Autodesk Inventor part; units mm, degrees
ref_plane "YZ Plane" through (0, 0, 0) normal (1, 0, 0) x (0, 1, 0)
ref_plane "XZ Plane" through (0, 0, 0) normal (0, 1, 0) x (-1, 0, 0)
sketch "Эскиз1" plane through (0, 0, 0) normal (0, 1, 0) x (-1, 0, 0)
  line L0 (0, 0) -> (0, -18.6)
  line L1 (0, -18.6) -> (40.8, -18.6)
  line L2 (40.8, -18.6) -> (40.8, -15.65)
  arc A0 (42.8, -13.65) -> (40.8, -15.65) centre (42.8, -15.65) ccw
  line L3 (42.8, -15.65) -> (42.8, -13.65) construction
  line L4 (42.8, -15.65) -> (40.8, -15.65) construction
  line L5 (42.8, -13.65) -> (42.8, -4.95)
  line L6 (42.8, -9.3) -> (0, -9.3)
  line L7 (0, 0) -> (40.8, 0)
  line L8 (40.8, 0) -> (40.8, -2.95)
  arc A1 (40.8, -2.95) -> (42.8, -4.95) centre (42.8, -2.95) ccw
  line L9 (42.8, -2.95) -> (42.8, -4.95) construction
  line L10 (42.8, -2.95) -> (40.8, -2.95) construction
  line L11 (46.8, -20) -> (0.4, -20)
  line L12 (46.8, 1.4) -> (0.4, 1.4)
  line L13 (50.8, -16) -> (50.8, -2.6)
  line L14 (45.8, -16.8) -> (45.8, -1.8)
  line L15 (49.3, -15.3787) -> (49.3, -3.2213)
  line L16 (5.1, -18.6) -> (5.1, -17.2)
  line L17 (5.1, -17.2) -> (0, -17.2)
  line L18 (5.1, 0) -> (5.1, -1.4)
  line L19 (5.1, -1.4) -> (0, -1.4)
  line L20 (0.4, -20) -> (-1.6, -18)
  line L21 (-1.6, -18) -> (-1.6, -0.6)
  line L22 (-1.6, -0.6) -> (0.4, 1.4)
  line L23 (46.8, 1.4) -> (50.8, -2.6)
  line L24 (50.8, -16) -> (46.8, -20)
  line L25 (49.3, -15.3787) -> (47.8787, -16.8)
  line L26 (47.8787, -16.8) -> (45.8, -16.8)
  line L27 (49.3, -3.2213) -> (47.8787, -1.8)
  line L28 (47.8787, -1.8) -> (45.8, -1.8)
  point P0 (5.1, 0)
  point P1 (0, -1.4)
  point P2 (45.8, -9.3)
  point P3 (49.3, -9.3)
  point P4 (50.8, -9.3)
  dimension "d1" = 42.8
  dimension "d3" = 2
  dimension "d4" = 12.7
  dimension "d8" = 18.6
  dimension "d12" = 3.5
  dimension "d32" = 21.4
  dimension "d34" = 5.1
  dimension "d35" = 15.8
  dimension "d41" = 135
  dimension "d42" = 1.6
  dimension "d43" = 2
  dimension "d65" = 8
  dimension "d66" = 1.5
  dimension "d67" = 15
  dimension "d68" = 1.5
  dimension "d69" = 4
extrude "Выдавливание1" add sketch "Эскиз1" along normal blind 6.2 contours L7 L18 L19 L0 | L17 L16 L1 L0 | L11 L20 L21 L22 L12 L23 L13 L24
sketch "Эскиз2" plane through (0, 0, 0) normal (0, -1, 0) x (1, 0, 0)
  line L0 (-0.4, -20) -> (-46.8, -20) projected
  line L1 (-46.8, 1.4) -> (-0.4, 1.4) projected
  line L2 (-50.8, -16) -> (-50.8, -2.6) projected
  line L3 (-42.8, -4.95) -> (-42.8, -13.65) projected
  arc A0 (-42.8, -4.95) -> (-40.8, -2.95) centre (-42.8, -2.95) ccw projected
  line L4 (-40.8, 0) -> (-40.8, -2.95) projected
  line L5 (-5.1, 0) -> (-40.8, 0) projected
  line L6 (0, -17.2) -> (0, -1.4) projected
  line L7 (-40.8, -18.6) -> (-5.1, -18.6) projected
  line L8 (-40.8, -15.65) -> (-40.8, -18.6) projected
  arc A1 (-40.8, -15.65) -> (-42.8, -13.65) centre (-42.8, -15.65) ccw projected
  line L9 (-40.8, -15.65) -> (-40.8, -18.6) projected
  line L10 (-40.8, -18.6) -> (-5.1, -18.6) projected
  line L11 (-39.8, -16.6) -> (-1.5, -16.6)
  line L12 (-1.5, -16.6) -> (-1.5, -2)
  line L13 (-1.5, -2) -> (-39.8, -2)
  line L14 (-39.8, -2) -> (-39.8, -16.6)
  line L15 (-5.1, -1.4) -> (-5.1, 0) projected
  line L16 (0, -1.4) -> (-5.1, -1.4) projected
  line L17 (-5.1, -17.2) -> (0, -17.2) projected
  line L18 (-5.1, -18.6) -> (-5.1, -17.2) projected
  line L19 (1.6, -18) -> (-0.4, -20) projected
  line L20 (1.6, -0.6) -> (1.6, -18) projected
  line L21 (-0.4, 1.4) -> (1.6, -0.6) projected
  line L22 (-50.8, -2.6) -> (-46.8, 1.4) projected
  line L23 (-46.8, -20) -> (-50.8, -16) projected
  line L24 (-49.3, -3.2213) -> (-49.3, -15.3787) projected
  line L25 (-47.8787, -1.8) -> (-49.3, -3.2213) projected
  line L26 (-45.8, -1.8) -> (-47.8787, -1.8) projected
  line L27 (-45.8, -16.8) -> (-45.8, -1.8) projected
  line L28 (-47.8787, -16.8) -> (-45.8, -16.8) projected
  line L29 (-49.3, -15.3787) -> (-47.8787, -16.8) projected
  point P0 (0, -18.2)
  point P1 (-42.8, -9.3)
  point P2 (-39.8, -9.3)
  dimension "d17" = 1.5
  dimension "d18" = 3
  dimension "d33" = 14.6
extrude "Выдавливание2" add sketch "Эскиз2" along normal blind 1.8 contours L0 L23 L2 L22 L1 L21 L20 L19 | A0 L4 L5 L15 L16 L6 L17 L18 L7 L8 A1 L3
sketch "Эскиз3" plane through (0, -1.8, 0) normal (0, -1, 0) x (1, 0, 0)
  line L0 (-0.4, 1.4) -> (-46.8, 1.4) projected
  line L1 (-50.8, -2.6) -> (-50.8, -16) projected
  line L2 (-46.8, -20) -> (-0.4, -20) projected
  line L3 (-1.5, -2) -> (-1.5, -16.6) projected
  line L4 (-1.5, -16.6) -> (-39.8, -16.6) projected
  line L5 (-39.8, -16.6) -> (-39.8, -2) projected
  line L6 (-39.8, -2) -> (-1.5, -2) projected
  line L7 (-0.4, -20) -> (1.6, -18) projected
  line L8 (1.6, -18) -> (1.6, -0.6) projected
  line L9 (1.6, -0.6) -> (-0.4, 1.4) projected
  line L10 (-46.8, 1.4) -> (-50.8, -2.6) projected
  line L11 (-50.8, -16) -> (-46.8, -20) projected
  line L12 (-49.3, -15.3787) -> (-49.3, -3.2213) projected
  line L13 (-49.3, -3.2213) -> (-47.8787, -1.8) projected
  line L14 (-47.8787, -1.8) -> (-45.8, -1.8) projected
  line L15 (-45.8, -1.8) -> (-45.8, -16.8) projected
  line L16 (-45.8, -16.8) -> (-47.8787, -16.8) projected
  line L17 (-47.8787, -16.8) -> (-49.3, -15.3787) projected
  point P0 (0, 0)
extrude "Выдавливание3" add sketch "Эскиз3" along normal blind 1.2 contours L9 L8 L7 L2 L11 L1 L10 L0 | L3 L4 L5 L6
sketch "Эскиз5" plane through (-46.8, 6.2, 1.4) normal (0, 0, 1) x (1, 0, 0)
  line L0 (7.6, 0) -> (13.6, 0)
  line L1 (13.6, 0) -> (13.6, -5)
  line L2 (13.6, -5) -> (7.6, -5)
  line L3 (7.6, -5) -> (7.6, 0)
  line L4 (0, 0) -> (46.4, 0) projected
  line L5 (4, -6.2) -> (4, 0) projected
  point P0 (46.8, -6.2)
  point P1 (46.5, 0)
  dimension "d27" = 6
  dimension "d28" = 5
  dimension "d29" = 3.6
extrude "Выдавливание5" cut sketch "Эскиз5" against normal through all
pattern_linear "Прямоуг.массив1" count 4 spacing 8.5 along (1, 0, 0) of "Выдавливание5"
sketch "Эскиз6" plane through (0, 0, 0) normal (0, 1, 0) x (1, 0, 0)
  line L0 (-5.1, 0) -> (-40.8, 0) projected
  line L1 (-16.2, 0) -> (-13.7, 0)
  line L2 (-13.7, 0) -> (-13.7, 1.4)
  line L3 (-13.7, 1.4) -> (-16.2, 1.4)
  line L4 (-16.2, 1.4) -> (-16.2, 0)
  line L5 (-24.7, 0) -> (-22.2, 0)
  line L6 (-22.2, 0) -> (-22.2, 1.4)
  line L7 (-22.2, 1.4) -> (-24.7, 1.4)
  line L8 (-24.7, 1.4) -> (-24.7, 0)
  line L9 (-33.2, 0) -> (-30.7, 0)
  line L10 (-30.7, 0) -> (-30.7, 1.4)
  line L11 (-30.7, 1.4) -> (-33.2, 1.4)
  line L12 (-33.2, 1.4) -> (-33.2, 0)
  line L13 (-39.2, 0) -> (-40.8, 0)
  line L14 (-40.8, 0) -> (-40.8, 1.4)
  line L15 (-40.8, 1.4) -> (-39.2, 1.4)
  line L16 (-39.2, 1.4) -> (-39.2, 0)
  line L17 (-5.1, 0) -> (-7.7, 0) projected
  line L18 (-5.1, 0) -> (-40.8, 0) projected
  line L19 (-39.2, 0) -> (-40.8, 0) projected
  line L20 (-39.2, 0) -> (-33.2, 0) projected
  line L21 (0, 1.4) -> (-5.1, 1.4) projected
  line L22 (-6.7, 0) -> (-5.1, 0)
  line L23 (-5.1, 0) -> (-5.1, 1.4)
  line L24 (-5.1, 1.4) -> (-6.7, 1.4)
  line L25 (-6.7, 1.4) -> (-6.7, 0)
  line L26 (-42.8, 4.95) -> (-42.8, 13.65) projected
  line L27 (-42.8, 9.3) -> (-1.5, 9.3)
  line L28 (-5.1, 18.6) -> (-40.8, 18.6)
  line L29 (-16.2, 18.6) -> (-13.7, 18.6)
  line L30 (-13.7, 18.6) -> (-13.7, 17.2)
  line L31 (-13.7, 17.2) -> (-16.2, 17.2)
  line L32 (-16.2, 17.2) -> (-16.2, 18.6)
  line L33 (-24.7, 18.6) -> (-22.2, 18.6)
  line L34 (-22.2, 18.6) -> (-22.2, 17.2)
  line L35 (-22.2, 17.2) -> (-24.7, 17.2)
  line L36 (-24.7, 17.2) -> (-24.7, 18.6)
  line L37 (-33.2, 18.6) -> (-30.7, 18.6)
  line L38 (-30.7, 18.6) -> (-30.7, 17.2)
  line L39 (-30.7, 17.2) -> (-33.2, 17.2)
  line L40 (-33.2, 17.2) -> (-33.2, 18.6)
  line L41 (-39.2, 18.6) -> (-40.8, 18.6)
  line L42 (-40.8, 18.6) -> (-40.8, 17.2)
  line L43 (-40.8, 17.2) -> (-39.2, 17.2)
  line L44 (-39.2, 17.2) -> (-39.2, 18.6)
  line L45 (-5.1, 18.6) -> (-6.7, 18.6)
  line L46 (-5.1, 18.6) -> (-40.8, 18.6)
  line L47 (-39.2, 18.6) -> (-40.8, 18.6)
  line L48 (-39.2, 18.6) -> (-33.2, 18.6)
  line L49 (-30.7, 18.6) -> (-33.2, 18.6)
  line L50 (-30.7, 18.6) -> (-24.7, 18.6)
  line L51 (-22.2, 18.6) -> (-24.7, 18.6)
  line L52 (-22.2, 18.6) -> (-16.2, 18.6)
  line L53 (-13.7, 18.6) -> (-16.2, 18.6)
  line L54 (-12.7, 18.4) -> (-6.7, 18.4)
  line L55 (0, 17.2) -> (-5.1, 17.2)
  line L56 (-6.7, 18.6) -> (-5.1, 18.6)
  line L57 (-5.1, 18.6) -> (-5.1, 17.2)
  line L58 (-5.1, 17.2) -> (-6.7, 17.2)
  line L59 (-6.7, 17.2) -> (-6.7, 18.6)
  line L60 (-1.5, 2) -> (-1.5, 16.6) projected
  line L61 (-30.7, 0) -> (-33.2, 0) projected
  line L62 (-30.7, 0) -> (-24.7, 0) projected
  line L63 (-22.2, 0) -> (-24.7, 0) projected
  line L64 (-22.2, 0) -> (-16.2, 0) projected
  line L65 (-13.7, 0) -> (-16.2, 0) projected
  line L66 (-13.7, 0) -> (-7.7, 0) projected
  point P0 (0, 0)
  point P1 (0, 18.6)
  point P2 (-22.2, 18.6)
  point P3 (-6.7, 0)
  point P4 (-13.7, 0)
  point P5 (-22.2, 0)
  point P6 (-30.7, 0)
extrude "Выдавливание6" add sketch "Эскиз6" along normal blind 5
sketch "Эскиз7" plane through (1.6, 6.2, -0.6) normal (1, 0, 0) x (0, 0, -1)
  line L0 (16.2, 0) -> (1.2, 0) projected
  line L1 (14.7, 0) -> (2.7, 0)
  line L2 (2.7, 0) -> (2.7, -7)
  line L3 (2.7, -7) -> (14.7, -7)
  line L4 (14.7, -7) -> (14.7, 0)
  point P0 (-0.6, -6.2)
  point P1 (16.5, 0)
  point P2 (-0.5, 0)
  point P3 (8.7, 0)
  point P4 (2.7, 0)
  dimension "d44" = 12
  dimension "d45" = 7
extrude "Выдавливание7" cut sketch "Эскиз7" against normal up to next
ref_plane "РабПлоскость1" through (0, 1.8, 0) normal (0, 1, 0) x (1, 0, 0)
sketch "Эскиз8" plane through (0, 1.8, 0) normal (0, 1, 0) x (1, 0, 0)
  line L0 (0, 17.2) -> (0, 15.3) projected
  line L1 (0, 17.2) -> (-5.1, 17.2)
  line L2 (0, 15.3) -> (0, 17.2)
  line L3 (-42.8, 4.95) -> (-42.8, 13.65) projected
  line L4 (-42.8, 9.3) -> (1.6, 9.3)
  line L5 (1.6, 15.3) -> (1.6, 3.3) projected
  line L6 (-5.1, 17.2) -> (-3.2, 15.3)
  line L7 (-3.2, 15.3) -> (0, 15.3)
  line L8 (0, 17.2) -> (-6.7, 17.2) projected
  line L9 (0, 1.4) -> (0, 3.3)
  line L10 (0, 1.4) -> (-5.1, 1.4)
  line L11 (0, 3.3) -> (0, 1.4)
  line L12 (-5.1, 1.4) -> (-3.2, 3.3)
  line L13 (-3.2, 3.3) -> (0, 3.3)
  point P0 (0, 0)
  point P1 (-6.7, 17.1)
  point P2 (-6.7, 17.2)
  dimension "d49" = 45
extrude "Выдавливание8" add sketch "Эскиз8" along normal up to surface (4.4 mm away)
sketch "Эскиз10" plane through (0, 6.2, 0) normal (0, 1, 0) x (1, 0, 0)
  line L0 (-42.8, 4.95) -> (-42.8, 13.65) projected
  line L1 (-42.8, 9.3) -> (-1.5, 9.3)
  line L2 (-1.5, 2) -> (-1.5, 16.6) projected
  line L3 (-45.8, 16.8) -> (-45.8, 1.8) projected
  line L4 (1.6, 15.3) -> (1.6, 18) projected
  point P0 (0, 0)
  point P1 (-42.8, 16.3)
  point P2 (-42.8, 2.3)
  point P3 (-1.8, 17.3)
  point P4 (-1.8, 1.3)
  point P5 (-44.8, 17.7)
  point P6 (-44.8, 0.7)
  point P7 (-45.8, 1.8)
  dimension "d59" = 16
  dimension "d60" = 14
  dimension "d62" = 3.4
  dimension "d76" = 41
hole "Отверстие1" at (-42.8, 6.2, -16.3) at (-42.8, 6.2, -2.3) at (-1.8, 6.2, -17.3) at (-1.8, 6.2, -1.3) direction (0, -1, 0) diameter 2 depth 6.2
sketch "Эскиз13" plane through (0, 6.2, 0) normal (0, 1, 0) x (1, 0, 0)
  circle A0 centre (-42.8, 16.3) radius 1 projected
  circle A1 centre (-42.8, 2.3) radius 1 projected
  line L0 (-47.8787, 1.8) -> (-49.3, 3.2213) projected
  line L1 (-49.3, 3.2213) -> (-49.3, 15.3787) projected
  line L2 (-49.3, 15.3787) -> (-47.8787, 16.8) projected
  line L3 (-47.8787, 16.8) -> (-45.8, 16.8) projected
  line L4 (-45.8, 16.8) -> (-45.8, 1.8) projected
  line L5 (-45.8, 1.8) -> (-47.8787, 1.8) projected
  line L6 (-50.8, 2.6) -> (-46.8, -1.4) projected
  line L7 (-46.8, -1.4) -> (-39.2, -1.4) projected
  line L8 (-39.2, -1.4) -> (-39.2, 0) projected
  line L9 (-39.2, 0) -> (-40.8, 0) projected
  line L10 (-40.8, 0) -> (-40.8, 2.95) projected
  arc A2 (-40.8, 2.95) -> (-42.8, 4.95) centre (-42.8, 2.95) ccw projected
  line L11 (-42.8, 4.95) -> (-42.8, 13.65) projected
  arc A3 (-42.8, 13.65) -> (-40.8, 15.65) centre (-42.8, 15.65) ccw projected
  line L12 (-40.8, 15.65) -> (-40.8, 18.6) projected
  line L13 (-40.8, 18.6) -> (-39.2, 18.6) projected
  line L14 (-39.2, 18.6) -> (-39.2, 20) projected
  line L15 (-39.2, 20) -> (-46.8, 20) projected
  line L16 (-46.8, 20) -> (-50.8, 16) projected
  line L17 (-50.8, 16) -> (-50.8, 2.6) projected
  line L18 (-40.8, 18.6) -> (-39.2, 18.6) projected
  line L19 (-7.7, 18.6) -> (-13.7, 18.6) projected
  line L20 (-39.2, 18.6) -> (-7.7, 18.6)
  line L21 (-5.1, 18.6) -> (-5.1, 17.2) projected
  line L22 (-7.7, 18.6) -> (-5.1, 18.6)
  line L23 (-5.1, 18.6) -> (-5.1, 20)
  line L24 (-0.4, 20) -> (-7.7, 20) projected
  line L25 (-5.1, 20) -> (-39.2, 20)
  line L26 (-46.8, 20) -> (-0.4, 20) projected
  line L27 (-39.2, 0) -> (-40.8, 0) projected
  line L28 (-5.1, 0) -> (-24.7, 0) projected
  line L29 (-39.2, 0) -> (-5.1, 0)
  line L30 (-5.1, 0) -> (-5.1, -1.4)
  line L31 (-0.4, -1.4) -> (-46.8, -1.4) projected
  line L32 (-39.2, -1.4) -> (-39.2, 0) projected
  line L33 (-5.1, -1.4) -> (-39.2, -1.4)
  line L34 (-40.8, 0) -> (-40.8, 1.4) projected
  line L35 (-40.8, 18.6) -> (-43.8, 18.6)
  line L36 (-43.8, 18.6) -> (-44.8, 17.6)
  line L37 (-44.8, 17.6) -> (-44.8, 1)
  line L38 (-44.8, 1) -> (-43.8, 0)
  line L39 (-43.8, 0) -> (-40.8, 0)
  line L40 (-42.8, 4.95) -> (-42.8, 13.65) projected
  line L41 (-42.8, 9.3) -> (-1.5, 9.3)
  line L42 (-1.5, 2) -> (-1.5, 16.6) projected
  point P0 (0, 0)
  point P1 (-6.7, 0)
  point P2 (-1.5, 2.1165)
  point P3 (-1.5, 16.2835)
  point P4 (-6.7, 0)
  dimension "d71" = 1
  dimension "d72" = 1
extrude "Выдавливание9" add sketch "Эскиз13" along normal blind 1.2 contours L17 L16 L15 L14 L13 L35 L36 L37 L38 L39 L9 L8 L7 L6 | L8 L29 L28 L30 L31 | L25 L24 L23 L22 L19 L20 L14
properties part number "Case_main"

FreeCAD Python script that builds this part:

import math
import FreeCAD as App
import Part
import Sketcher

V = App.Vector
Q = App.Units.Quantity

doc = App.newDocument("Part")
body = doc.addObject("PartDesign::Body", "Body")

# Sketch on XZ plane
sketch1 = body.newObject("Sketcher::SketchObject", "Sketch")
sketch1.AttachmentSupport = (doc.getObject("XZ_Plane"), [""])
sketch1.MapMode = "FlatFace"
sketch1.addGeometry([
    Part.LineSegment(V(-0.4, -20, 0), V(-46.8, -20, 0)),  # 0
    Part.LineSegment(V(-46.8, -20, 0), V(-50.8, -16, 0)),  # 1
    Part.LineSegment(V(-50.8, -16, 0), V(-50.8, -2.6, 0)),  # 2
    Part.LineSegment(V(-50.8, -2.6, 0), V(-46.8, 1.4, 0)),  # 3
    Part.LineSegment(V(-46.8, 1.4, 0), V(-0.4, 1.4, 0)),  # 4
    Part.LineSegment(V(-0.4, 1.4, 0), V(1.6, -0.6, 0)),  # 5
    Part.LineSegment(V(1.6, -0.6, 0), V(1.6, -18, 0)),  # 6
    Part.LineSegment(V(1.6, -18, 0), V(-0.4, -20, 0)),  # 7
    Part.LineSegment(V(-5.1, -1.4, 0), V(-5.1, 0, 0)),  # 8
    Part.LineSegment(V(-5.1, 0, 0), V(-40.8, 0, 0)),  # 9
    Part.LineSegment(V(-40.8, 0, 0), V(-40.8, -3, 0)),  # 10
    Part.ArcOfCircle(Part.Circle(V(-42.8, -3, 0), V(0, 0, 1), 2), math.radians(-90), math.radians(0)),  # 11
    Part.LineSegment(V(-42.8, -5, 0), V(-42.8, -13.7, 0)),  # 12
    Part.ArcOfCircle(Part.Circle(V(-42.8, -15.7, 0), V(0, 0, 1), 2), math.radians(0), math.radians(90)),  # 13
    Part.LineSegment(V(-40.8, -15.7, 0), V(-40.8, -18.6, 0)),  # 14
    Part.LineSegment(V(-40.8, -18.6, 0), V(-5.1, -18.6, 0)),  # 15
    Part.LineSegment(V(-5.1, -18.6, 0), V(-5.1, -17.2, 0)),  # 16
    Part.LineSegment(V(-5.1, -17.2, 0), V(0, -17.2, 0)),  # 17
    Part.LineSegment(V(0, -17.2, 0), V(0, -1.4, 0)),  # 18
    Part.LineSegment(V(0, -1.4, 0), V(-5.1, -1.4, 0)),  # 19
    Part.LineSegment(V(-45.8, -1.8, 0), V(-47.9, -1.8, 0)),  # 20
    Part.LineSegment(V(-47.9, -1.8, 0), V(-49.3, -3.2, 0)),  # 21
    Part.LineSegment(V(-49.3, -3.2, 0), V(-49.3, -15.4, 0)),  # 22
    Part.LineSegment(V(-49.3, -15.4, 0), V(-47.9, -16.8, 0)),  # 23
    Part.LineSegment(V(-47.9, -16.8, 0), V(-45.8, -16.8, 0)),  # 24
    Part.LineSegment(V(-45.8, -16.8, 0), V(-45.8, -1.8, 0)),  # 25
], False)
sketch1.addConstraint([
    Sketcher.Constraint("Coincident", 0, 2, 1, 1),
    Sketcher.Constraint("Coincident", 1, 2, 2, 1),
    Sketcher.Constraint("Coincident", 2, 2, 3, 1),
    Sketcher.Constraint("Coincident", 3, 2, 4, 1),
    Sketcher.Constraint("Coincident", 4, 2, 5, 1),
    Sketcher.Constraint("Coincident", 5, 2, 6, 1),
    Sketcher.Constraint("Coincident", 6, 2, 7, 1),
    Sketcher.Constraint("Coincident", 7, 2, 0, 1),
    Sketcher.Constraint("Coincident", 8, 2, 9, 1),
    Sketcher.Constraint("Coincident", 9, 2, 10, 1),
    Sketcher.Constraint("Tangent", 10, 2, 11, 2),
    Sketcher.Constraint("Coincident", 11, 1, 12, 1),
    Sketcher.Constraint("Coincident", 12, 2, 13, 2),
    Sketcher.Constraint("Tangent", 13, 1, 14, 1),
    Sketcher.Constraint("Coincident", 14, 2, 15, 1),
    Sketcher.Constraint("Coincident", 15, 2, 16, 1),
    Sketcher.Constraint("Coincident", 16, 2, 17, 1),
    Sketcher.Constraint("Coincident", 17, 2, 18, 1),
    Sketcher.Constraint("Coincident", 18, 2, 19, 1),
    Sketcher.Constraint("Coincident", 19, 2, 8, 1),
    Sketcher.Constraint("Coincident", 20, 2, 21, 1),
    Sketcher.Constraint("Coincident", 21, 2, 22, 1),
    Sketcher.Constraint("Coincident", 22, 2, 23, 1),
    Sketcher.Constraint("Coincident", 23, 2, 24, 1),
    Sketcher.Constraint("Coincident", 24, 2, 25, 1),
    Sketcher.Constraint("Coincident", 25, 2, 20, 1),
    Sketcher.Constraint("Horizontal", 0),
    Sketcher.Constraint("Vertical", 2),
    Sketcher.Constraint("Horizontal", 4),
    Sketcher.Constraint("Vertical", 6),
    Sketcher.Constraint("Vertical", 8),
    Sketcher.Constraint("Horizontal", 9),
    Sketcher.Constraint("Vertical", 10),
    Sketcher.Constraint("Vertical", 12),
    Sketcher.Constraint("Vertical", 14),
    Sketcher.Constraint("Horizontal", 15),
    Sketcher.Constraint("Vertical", 16),
    Sketcher.Constraint("Horizontal", 17),
    Sketcher.Constraint("Vertical", 18),
    Sketcher.Constraint("Horizontal", 19),
    Sketcher.Constraint("Horizontal", 20),
    Sketcher.Constraint("Vertical", 22),
    Sketcher.Constraint("Horizontal", 24),
    Sketcher.Constraint("Vertical", 25),
    Sketcher.Constraint("Equal", 11, 13),
    Sketcher.Constraint("PointOnObject", 8, 2, -1),
    Sketcher.Constraint("PointOnObject", 17, 2, -2),
    Sketcher.Constraint("Perpendicular", 1, 3),
    Sketcher.Constraint("Perpendicular", 3, 5),
    Sketcher.Constraint("Perpendicular", 5, 7),
    Sketcher.Constraint("Parallel", 7, 21),
    Sketcher.Constraint("Perpendicular", 21, 23),
    Sketcher.Constraint("Vertical", 11, 3, 13, 3),
    Sketcher.Constraint("Vertical", 0, 2, 3, 2),
    Sketcher.Constraint("Vertical", 4, 2, 7, 2),
    Sketcher.Constraint("Vertical", 13, 3, 11, 1),
    Sketcher.Constraint("Vertical", 8, 2, 15, 2),
    Sketcher.Constraint("Vertical", 20, 2, 23, 2),
    Sketcher.Constraint("Equal", 10, 14),
    Sketcher.Constraint("Equal", 8, 16),
    Sketcher.Constraint("Equal", 1, 3),
    Sketcher.Constraint("Radius", 11, Q("2 mm")),
    Sketcher.Constraint("DistanceY", 25, 1, 25, 2, Q("15 mm")),
    Sketcher.Constraint("DistanceX", 17, 1, 17, 2, Q("5.1 mm")),
    Sketcher.Constraint("DistanceY", 18, 1, 18, 2, Q("15.8 mm")),
    Sketcher.Constraint("DistanceX", 0, 2, 13, 3, Q("4 mm")),
    Sketcher.Constraint("DistanceX", 1, 2, 0, 2, Q("4 mm")),
    Sketcher.Constraint("DistanceX", 4, 2, 5, 2, Q("2 mm")),
    Sketcher.Constraint("DistanceX", 11, 3, -1, 1, Q("42.8 mm")),
    Sketcher.Constraint("DistanceX", -1, 1, 5, 2, Q("1.6 mm")),
    Sketcher.Constraint("DistanceY", 14, 2, -1, 1, Q("18.6 mm")),
    Sketcher.Constraint("DistanceY", 13, 3, 11, 3, Q("12.7 mm")),
    Sketcher.Constraint("DistanceY", 0, 2, 3, 2, Q("21.4 mm")),
    Sketcher.Constraint("DistanceX", 2, 2, 21, 2, Q("1.5 mm")),
    Sketcher.Constraint("DistanceX", 22, 2, 24, 2, Q("3.5 mm")),
    Sketcher.Constraint("DistanceY", 0, 2, -1, 1, Q("20 mm")),
    Sketcher.Constraint("DistanceY", 20, 2, -1, 1, Q("1.8 mm")),
    Sketcher.Constraint("Distance", 21, Q("2.01 mm")),
])
pad1 = body.newObject("PartDesign::Pad", "Pad")
pad1.Profile = sketch1
pad1.Length = 6.2
pad1.Reversed = True

# Sketch on XZ plane
sketch2 = body.newObject("Sketcher::SketchObject", "Sketch001")
sketch2.AttachmentSupport = (doc.getObject("XZ_Plane"), [""])
sketch2.MapMode = "FlatFace"
sketch2.addGeometry([
    Part.LineSegment(V(-46.8, -20, 0), V(-0.4, -20, 0)),  # 0
    Part.LineSegment(V(-0.4, -20, 0), V(1.6, -18, 0)),  # 1
    Part.LineSegment(V(1.6, -18, 0), V(1.6, -0.6, 0)),  # 2
    Part.LineSegment(V(1.6, -0.6, 0), V(-0.4, 1.4, 0)),  # 3
    Part.LineSegment(V(-0.4, 1.4, 0), V(-46.8, 1.4, 0)),  # 4
    Part.LineSegment(V(-46.8, 1.4, 0), V(-50.8, -2.6, 0)),  # 5
    Part.LineSegment(V(-50.8, -2.6, 0), V(-50.8, -16, 0)),  # 6
    Part.LineSegment(V(-50.8, -16, 0), V(-46.8, -20, 0)),  # 7
    Part.LineSegment(V(-49.3, -15.4, 0), V(-49.3, -3.2, 0)),  # 8
    Part.LineSegment(V(-49.3, -3.2, 0), V(-47.9, -1.8, 0)),  # 9
    Part.LineSegment(V(-47.9, -1.8, 0), V(-45.8, -1.8, 0)),  # 10
    Part.LineSegment(V(-45.8, -1.8, 0), V(-45.8, -16.8, 0)),  # 11
    Part.LineSegment(V(-45.8, -16.8, 0), V(-47.9, -16.8, 0)),  # 12
    Part.LineSegment(V(-47.9, -16.8, 0), V(-49.3, -15.4, 0)),  # 13
    Part.LineSegment(V(-1.5, -16.6, 0), V(-39.8, -16.6, 0)),  # 14
    Part.LineSegment(V(-39.8, -16.6, 0), V(-39.8, -2, 0)),  # 15
    Part.LineSegment(V(-39.8, -2, 0), V(-1.5, -2, 0)),  # 16
    Part.LineSegment(V(-1.5, -2, 0), V(-1.5, -16.6, 0)),  # 17
], False)
sketch2.addConstraint([
    Sketcher.Constraint("Coincident", 0, 2, 1, 1),
    Sketcher.Constraint("Coincident", 1, 2, 2, 1),
    Sketcher.Constraint("Coincident", 2, 2, 3, 1),
    Sketcher.Constraint("Coincident", 3, 2, 4, 1),
    Sketcher.Constraint("Coincident", 4, 2, 5, 1),
    Sketcher.Constraint("Coincident", 5, 2, 6, 1),
    Sketcher.Constraint("Coincident", 6, 2, 7, 1),
    Sketcher.Constraint("Coincident", 7, 2, 0, 1),
    Sketcher.Constraint("Coincident", 8, 2, 9, 1),
    Sketcher.Constraint("Coincident", 9, 2, 10, 1),
    Sketcher.Constraint("Coincident", 10, 2, 11, 1),
    Sketcher.Constraint("Coincident", 11, 2, 12, 1),
    Sketcher.Constraint("Coincident", 12, 2, 13, 1),
    Sketcher.Constraint("Coincident", 13, 2, 8, 1),
    Sketcher.Constraint("Coincident", 14, 2, 15, 1),
    Sketcher.Constraint("Coincident", 15, 2, 16, 1),
    Sketcher.Constraint("Coincident", 16, 2, 17, 1),
    Sketcher.Constraint("Coincident", 17, 2, 14, 1),
    Sketcher.Constraint("Horizontal", 0),
    Sketcher.Constraint("Vertical", 2),
    Sketcher.Constraint("Horizontal", 4),
    Sketcher.Constraint("Vertical", 6),
    Sketcher.Constraint("Vertical", 8),
    Sketcher.Constraint("Horizontal", 10),
    Sketcher.Constraint("Vertical", 11),
    Sketcher.Constraint("Horizontal", 12),
    Sketcher.Constraint("Horizontal", 14),
    Sketcher.Constraint("Vertical", 15),
    Sketcher.Constraint("Horizontal", 16),
    Sketcher.Constraint("Vertical", 17),
    Sketcher.Constraint("Perpendicular", 1, 3),
    Sketcher.Constraint("Perpendicular", 3, 5),
    Sketcher.Constraint("Perpendicular", 5, 7),
    Sketcher.Constraint("Perpendicular", 7, 9),
    Sketcher.Constraint("Perpendicular", 9, 13),
    Sketcher.Constraint("Vertical", 0, 2, 3, 2),
    Sketcher.Constraint("Vertical", 4, 2, 7, 2),
    Sketcher.Constraint("Vertical", 9, 2, 12, 2),
    Sketcher.Constraint("Equal", 1, 3),
    Sketcher.Constraint("DistanceY", 15, 1, 15, 2, Q("14.6 mm")),
    Sketcher.Constraint("DistanceX", 16, 2, -1, 1, Q("1.5 mm")),
    Sketcher.Constraint("DistanceX", 5, 2, 8, 2, Q("1.5 mm")),
    Sketcher.Constraint("DistanceY", 11, 2, 11, 1, Q("15 mm")),
    Sketcher.Constraint("DistanceX", 0, 1, 0, 2, Q("46.4 mm")),
    Sketcher.Constraint("DistanceX", 14, 2, 14, 1, Q("38.3 mm")),
    Sketcher.Constraint("DistanceY", 2, 1, 2, 2, Q("17.4 mm")),
    Sketcher.Constraint("DistanceY", 6, 2, 6, 1, Q("13.4 mm")),
    Sketcher.Constraint("DistanceY", 0, 2, -1, 1, Q("20 mm")),
    Sketcher.Constraint("DistanceY", 1, 2, -1, 1, Q("18 mm")),
    Sketcher.Constraint("DistanceY", 15, 2, -1, 1, Q("2 mm")),
    Sketcher.Constraint("DistanceX", 4, 2, 10, 2, Q("1 mm")),
    Sketcher.Constraint("DistanceX", 11, 2, 14, 2, Q("6 mm")),
    Sketcher.Constraint("DistanceY", 9, 2, -1, 1, Q("1.8 mm")),
    Sketcher.Constraint("Distance", 9, Q("2.01 mm")),
])
pad2 = body.newObject("PartDesign::Pad", "Pad001")
pad2.Profile = sketch2
pad2.Length = 1.8

# Sketch on XZ plane
sketch3 = body.newObject("Sketcher::SketchObject", "Sketch002")
sketch3.AttachmentSupport = (doc.getObject("XZ_Plane"), [""])
sketch3.MapMode = "FlatFace"
sketch3.AttachmentOffset = App.Placement(V(0, 0, 1.8), App.Rotation())
sketch3.addGeometry([
    Part.LineSegment(V(1.6, -0.6, 0), V(-0.4, 1.4, 0)),  # 0
    Part.LineSegment(V(-0.4, 1.4, 0), V(-46.8, 1.4, 0)),  # 1
    Part.LineSegment(V(-46.8, 1.4, 0), V(-50.8, -2.6, 0)),  # 2
    Part.LineSegment(V(-50.8, -2.6, 0), V(-50.8, -16, 0)),  # 3
    Part.LineSegment(V(-50.8, -16, 0), V(-46.8, -20, 0)),  # 4
    Part.LineSegment(V(-46.8, -20, 0), V(-0.4, -20, 0)),  # 5
    Part.LineSegment(V(-0.4, -20, 0), V(1.6, -18, 0)),  # 6
    Part.LineSegment(V(1.6, -18, 0), V(1.6, -0.6, 0)),  # 7
    Part.LineSegment(V(-47.9, -16.8, 0), V(-49.3, -15.4, 0)),  # 8
    Part.LineSegment(V(-49.3, -15.4, 0), V(-49.3, -3.2, 0)),  # 9
    Part.LineSegment(V(-49.3, -3.2, 0), V(-47.9, -1.8, 0)),  # 10
    Part.LineSegment(V(-47.9, -1.8, 0), V(-45.8, -1.8, 0)),  # 11
    Part.LineSegment(V(-45.8, -1.8, 0), V(-45.8, -16.8, 0)),  # 12
    Part.LineSegment(V(-45.8, -16.8, 0), V(-47.9, -16.8, 0)),  # 13
], False)
sketch3.addConstraint([
    Sketcher.Constraint("Coincident", 0, 2, 1, 1),
    Sketcher.Constraint("Coincident", 1, 2, 2, 1),
    Sketcher.Constraint("Coincident", 2, 2, 3, 1),
    Sketcher.Constraint("Coincident", 3, 2, 4, 1),
    Sketcher.Constraint("Coincident", 4, 2, 5, 1),
    Sketcher.Constraint("Coincident", 5, 2, 6, 1),
    Sketcher.Constraint("Coincident", 6, 2, 7, 1),
    Sketcher.Constraint("Coincident", 7, 2, 0, 1),
    Sketcher.Constraint("Coincident", 8, 2, 9, 1),
    Sketcher.Constraint("Coincident", 9, 2, 10, 1),
    Sketcher.Constraint("Coincident", 10, 2, 11, 1),
    Sketcher.Constraint("Coincident", 11, 2, 12, 1),
    Sketcher.Constraint("Coincident", 12, 2, 13, 1),
    Sketcher.Constraint("Coincident", 13, 2, 8, 1),
    Sketcher.Constraint("Horizontal", 1),
    Sketcher.Constraint("Vertical", 3),
    Sketcher.Constraint("Horizontal", 5),
    Sketcher.Constraint("Vertical", 7),
    Sketcher.Constraint("Vertical", 9),
    Sketcher.Constraint("Horizontal", 11),
    Sketcher.Constraint("Vertical", 12),
    Sketcher.Constraint("Horizontal", 13),
    Sketcher.Constraint("Perpendicular", 0, 2),
    Sketcher.Constraint("Perpendicular", 2, 4),
    Sketcher.Constraint("Perpendicular", 4, 6),
    Sketcher.Constraint("Perpendicular", 6, 8),
    Sketcher.Constraint("Perpendicular", 8, 10),
    Sketcher.Constraint("Vertical", 1, 2, 4, 2),
    Sketcher.Constraint("Vertical", 0, 2, 5, 2),
    Sketcher.Constraint("Vertical", 10, 2, 13, 2),
    Sketcher.Constraint("Equal", 2, 4),
    Sketcher.Constraint("DistanceY", 12, 2, 12, 1, Q("15 mm")),
    Sketcher.Constraint("DistanceX", 1, 2, 1, 1, Q("46.4 mm")),
    Sketcher.Constraint("DistanceY", 3, 2, 3, 1, Q("13.4 mm")),
    Sketcher.Constraint("DistanceY", 7, 1, 7, 2, Q("17.4 mm")),
    Sketcher.Constraint("DistanceY", 3, 2, -1, 1, Q("16 mm")),
    Sketcher.Constraint("DistanceY", 4, 2, -1, 1, Q("20 mm")),
    Sketcher.Constraint("DistanceX", 1, 2, 11, 2, Q("1 mm")),
    Sketcher.Constraint("DistanceX", 0, 2, -1, 1, Q("0.4 mm")),
    Sketcher.Constraint("DistanceX", 8, 2, -1, 1, Q("49.3 mm")),
    Sketcher.Constraint("DistanceY", 10, 2, -1, 1, Q("1.8 mm")),
    Sketcher.Constraint("Distance", 8, Q("2.01 mm")),
])
pad3 = body.newObject("PartDesign::Pad", "Pad002")
pad3.Profile = sketch3
pad3.Length = 1.2

# Sketch on XY plane
sketch4 = body.newObject("Sketcher::SketchObject", "Sketch003")
sketch4.AttachmentSupport = (doc.getObject("XY_Plane"), [""])
sketch4.MapMode = "FlatFace"
sketch4.AttachmentOffset = App.Placement(V(0, 0, 1.4), App.Rotation())
sketch4.addGeometry([
    Part.LineSegment(V(-33, 6, 0), V(-39, 6, 0)),
    Part.LineSegment(V(-39, 6, 0), V(-39, 1, 0)),
    Part.LineSegment(V(-39, 1, 0), V(-33, 1, 0)),
    Part.LineSegment(V(-33, 1, 0), V(-33, 6, 0)),
], False)
sketch4.addConstraint([
    Sketcher.Constraint("Coincident", 0, 2, 1, 1),
    Sketcher.Constraint("Coincident", 1, 2, 2, 1),
    Sketcher.Constraint("Coincident", 2, 2, 3, 1),
    Sketcher.Constraint("Coincident", 3, 2, 0, 1),
    Sketcher.Constraint("Horizontal", 0),
    Sketcher.Constraint("Vertical", 1),
    Sketcher.Constraint("Horizontal", 2),
    Sketcher.Constraint("Vertical", 3),
    Sketcher.Constraint("DistanceX", 0, 2, 0, 1, Q("6 mm")),
    Sketcher.Constraint("DistanceY", 1, 2, 1, 1, Q("5 mm")),
    Sketcher.Constraint("DistanceX", 0, 2, -1, 1, Q("39.2 mm")),
    Sketcher.Constraint("DistanceY", -1, 1, 0, 2, Q("6.2 mm")),
])
pocket1 = body.newObject("PartDesign::Pocket", "Pocket")
pocket1.Profile = sketch4
pocket1.Type = "ThroughAll"
doc.recompute()

linearpattern = body.newObject("PartDesign::LinearPattern", "LinearPattern")
linearpattern.Originals = [pocket1]
linearpattern.Direction = (doc.getObject("X_Axis"), [""])
linearpattern.Mode = "offset"
linearpattern.Offset = 8.5
linearpattern.Occurrences = 4
body.Tip = linearpattern

# Sketch on XZ plane
sketch5 = body.newObject("Sketcher::SketchObject", "Sketch004")
sketch5.AttachmentSupport = (doc.getObject("XZ_Plane"), [""])
sketch5.MapMode = "FlatFace"
sketch5.addGeometry([
    Part.LineSegment(V(-40.8, 0, 0), V(-39.2, 0, 0)),  # 0
    Part.LineSegment(V(-39.2, 0, 0), V(-39.2, -1.4, 0)),  # 1
    Part.LineSegment(V(-39.2, -1.4, 0), V(-40.8, -1.4, 0)),  # 2
    Part.LineSegment(V(-40.8, -1.4, 0), V(-40.8, 0, 0)),  # 3
    Part.LineSegment(V(-33.2, 0, 0), V(-30.7, 0, 0)),  # 4
    Part.LineSegment(V(-30.7, 0, 0), V(-30.7, -1.4, 0)),  # 5
    Part.LineSegment(V(-30.7, -1.4, 0), V(-33.2, -1.4, 0)),  # 6
    Part.LineSegment(V(-33.2, -1.4, 0), V(-33.2, 0, 0)),  # 7
    Part.LineSegment(V(-24.7, 0, 0), V(-22.2, 0, 0)),  # 8
    Part.LineSegment(V(-22.2, 0, 0), V(-22.2, -1.4, 0)),  # 9
    Part.LineSegment(V(-22.2, -1.4, 0), V(-24.7, -1.4, 0)),  # 10
    Part.LineSegment(V(-24.7, -1.4, 0), V(-24.7, 0, 0)),  # 11
    Part.LineSegment(V(-16.2, 0, 0), V(-13.7, 0, 0)),  # 12
    Part.LineSegment(V(-13.7, 0, 0), V(-13.7, -1.4, 0)),  # 13
    Part.LineSegment(V(-13.7, -1.4, 0), V(-16.2, -1.4, 0)),  # 14
    Part.LineSegment(V(-16.2, -1.4, 0), V(-16.2, 0, 0)),  # 15
    Part.LineSegment(V(-6.7, 0, 0), V(-5.1, 0, 0)),  # 16
    Part.LineSegment(V(-5.1, 0, 0), V(-5.1, -1.4, 0)),  # 17
    Part.LineSegment(V(-5.1, -1.4, 0), V(-6.7, -1.4, 0)),  # 18
    Part.LineSegment(V(-6.7, -1.4, 0), V(-6.7, 0, 0)),  # 19
    Part.LineSegment(V(-5.1, -17.2, 0), V(-5.1, -18.6, 0)),  # 20
    Part.LineSegment(V(-5.1, -18.6, 0), V(-6.7, -18.6, 0)),  # 21
    Part.LineSegment(V(-6.7, -18.6, 0), V(-6.7, -17.2, 0)),  # 22
    Part.LineSegment(V(-6.7, -17.2, 0), V(-5.1, -17.2, 0)),  # 23
    Part.LineSegment(V(-39.2, -17.2, 0), V(-39.2, -18.6, 0)),  # 24
    Part.LineSegment(V(-39.2, -18.6, 0), V(-40.8, -18.6, 0)),  # 25
    Part.LineSegment(V(-40.8, -18.6, 0), V(-40.8, -17.2, 0)),  # 26
    Part.LineSegment(V(-40.8, -17.2, 0), V(-39.2, -17.2, 0)),  # 27
    Part.LineSegment(V(-30.7, -17.2, 0), V(-30.7, -18.6, 0)),  # 28
    Part.LineSegment(V(-30.7, -18.6, 0), V(-33.2, -18.6, 0)),  # 29
    Part.LineSegment(V(-33.2, -18.6, 0), V(-33.2, -17.2, 0)),  # 30
    Part.LineSegment(V(-33.2, -17.2, 0), V(-30.7, -17.2, 0)),  # 31
    Part.LineSegment(V(-22.2, -17.2, 0), V(-22.2, -18.6, 0)),  # 32
    Part.LineSegment(V(-22.2, -18.6, 0), V(-24.7, -18.6, 0)),  # 33
    Part.LineSegment(V(-24.7, -18.6, 0), V(-24.7, -17.2, 0)),  # 34
    Part.LineSegment(V(-24.7, -17.2, 0), V(-22.2, -17.2, 0)),  # 35
    Part.LineSegment(V(-13.7, -17.2, 0), V(-13.7, -18.6, 0)),  # 36
    Part.LineSegment(V(-13.7, -18.6, 0), V(-16.2, -18.6, 0)),  # 37
    Part.LineSegment(V(-16.2, -18.6, 0), V(-16.2, -17.2, 0)),  # 38
    Part.LineSegment(V(-16.2, -17.2, 0), V(-13.7, -17.2, 0)),  # 39
], False)
sketch5.addConstraint([
    Sketcher.Constraint("Coincident", 0, 2, 1, 1),
    Sketcher.Constraint("Coincident", 1, 2, 2, 1),
    Sketcher.Constraint("Coincident", 2, 2, 3, 1),
    Sketcher.Constraint("Coincident", 3, 2, 0, 1),
    Sketcher.Constraint("Coincident", 4, 2, 5, 1),
    Sketcher.Constraint("Coincident", 5, 2, 6, 1),
    Sketcher.Constraint("Coincident", 6, 2, 7, 1),
    Sketcher.Constraint("Coincident", 7, 2, 4, 1),
    Sketcher.Constraint("Coincident", 8, 2, 9, 1),
    Sketcher.Constraint("Coincident", 9, 2, 10, 1),
    Sketcher.Constraint("Coincident", 10, 2, 11, 1),
    Sketcher.Constraint("Coincident", 11, 2, 8, 1),
    Sketcher.Constraint("Coincident", 12, 2, 13, 1),
    Sketcher.Constraint("Coincident", 13, 2, 14, 1),
    Sketcher.Constraint("Coincident", 14, 2, 15, 1),
    Sketcher.Constraint("Coincident", 15, 2, 12, 1),
    Sketcher.Constraint("Coincident", 16, 2, 17, 1),
    Sketcher.Constraint("Coincident", 17, 2, 18, 1),
    Sketcher.Constraint("Coincident", 18, 2, 19, 1),
    Sketcher.Constraint("Coincident", 19, 2, 16, 1),
    Sketcher.Constraint("Coincident", 20, 2, 21, 1),
    Sketcher.Constraint("Coincident", 21, 2, 22, 1),
    Sketcher.Constraint("Coincident", 22, 2, 23, 1),
    Sketcher.Constraint("Coincident", 23, 2, 20, 1),
    Sketcher.Constraint("Coincident", 24, 2, 25, 1),
    Sketcher.Constraint("Coincident", 25, 2, 26, 1),
    Sketcher.Constraint("Coincident", 26, 2, 27, 1),
    Sketcher.Constraint("Coincident", 27, 2, 24, 1),
    Sketcher.Constraint("Coincident", 28, 2, 29, 1),
    Sketcher.Constraint("Coincident", 29, 2, 30, 1),
    Sketcher.Constraint("Coincident", 30, 2, 31, 1),
    Sketcher.Constraint("Coincident", 31, 2, 28, 1),
    Sketcher.Constraint("Coincident", 32, 2, 33, 1),
    Sketcher.Constraint("Coincident", 33, 2, 34, 1),
    Sketcher.Constraint("Coincident", 34, 2, 35, 1),
    Sketcher.Constraint("Coincident", 35, 2, 32, 1),
    Sketcher.Constraint("Coincident", 36, 2, 37, 1),
    Sketcher.Constraint("Coincident", 37, 2, 38, 1),
    Sketcher.Constraint("Coincident", 38, 2, 39, 1),
    Sketcher.Constraint("Coincident", 39, 2, 36, 1),
    Sketcher.Constraint("Horizontal", 0),
    Sketcher.Constraint("Vertical", 1),
    Sketcher.Constraint("Horizontal", 2),
    Sketcher.Constraint("Vertical", 3),
    Sketcher.Constraint("Horizontal", 4),
    Sketcher.Constraint("Vertical", 5),
    Sketcher.Constraint("Horizontal", 6),
    Sketcher.Constraint("Vertical", 7),
    Sketcher.Constraint("Horizontal", 8),
    Sketcher.Constraint("Vertical", 9),
    Sketcher.Constraint("Horizontal", 10),
    Sketcher.Constraint("Vertical", 11),
    Sketcher.Constraint("Horizontal", 12),
    Sketcher.Constraint("Vertical", 13),
    Sketcher.Constraint("Horizontal", 14),
    Sketcher.Constraint("Vertical", 15),
    Sketcher.Constraint("Horizontal", 16),
    Sketcher.Constraint("Vertical", 17),
    Sketcher.Constraint("Horizontal", 18),
    Sketcher.Constraint("Vertical", 19),
    Sketcher.Constraint("Vertical", 20),
    Sketcher.Constraint("Horizontal", 21),
    Sketcher.Constraint("Vertical", 22),
    Sketcher.Constraint("Horizontal", 23),
    Sketcher.Constraint("Vertical", 24),
    Sketcher.Constraint("Horizontal", 25),
    Sketcher.Constraint("Vertical", 26),
    Sketcher.Constraint("Horizontal", 27),
    Sketcher.Constraint("Vertical", 28),
    Sketcher.Constraint("Horizontal", 29),
    Sketcher.Constraint("Vertical", 30),
    Sketcher.Constraint("Horizontal", 31),
    Sketcher.Constraint("Vertical", 32),
    Sketcher.Constraint("Horizontal", 33),
    Sketcher.Constraint("Vertical", 34),
    Sketcher.Constraint("Horizontal", 35),
    Sketcher.Constraint("Vertical", 36),
    Sketcher.Constraint("Horizontal", 37),
    Sketcher.Constraint("Vertical", 38),
    Sketcher.Constraint("Horizontal", 39),
    Sketcher.Constraint("PointOnObject", 0, 2, -1),
    Sketcher.Constraint("PointOnObject", 4, 2, -1),
    Sketcher.Constraint("PointOnObject", 8, 2, -1),
    Sketcher.Constraint("PointOnObject", 12, 2, -1),
    Sketcher.Constraint("PointOnObject", 16, 2, -1),
    Sketcher.Constraint("Horizontal", 2, 2, 5, 2),
    Sketcher.Constraint("Horizontal", 6, 2, 9, 2),
    Sketcher.Constraint("Horizontal", 10, 2, 13, 2),
    Sketcher.Constraint("Horizontal", 14, 2, 17, 2),
    Sketcher.Constraint("Horizontal", 21, 2, 24, 2),
    Sketcher.Constraint("Horizontal", 23, 2, 26, 2),
    Sketcher.Constraint("Horizontal", 25, 2, 28, 2),
    Sketcher.Constraint("Horizontal", 27, 2, 30, 2),
    Sketcher.Constraint("Horizontal", 29, 2, 32, 2),
    Sketcher.Constraint("Horizontal", 31, 2, 34, 2),
    Sketcher.Constraint("Horizontal", 33, 2, 36, 2),
    Sketcher.Constraint("Horizontal", 35, 2, 38, 2),
    Sketcher.Constraint("Vertical", 17, 2, 20, 2),
    Sketcher.Constraint("Vertical", 19, 2, 21, 2),
    Sketcher.Constraint("Vertical", 1, 2, 24, 2),
    Sketcher.Constraint("Vertical", 3, 2, 25, 2),
    Sketcher.Constraint("Vertical", 5, 2, 28, 2),
    Sketcher.Constraint("Vertical", 7, 2, 29, 2),
    Sketcher.Constraint("Vertical", 9, 2, 32, 2),
    Sketcher.Constraint("Vertical", 11, 2, 33, 2),
    Sketcher.Constraint("Vertical", 13, 2, 36, 2),
    Sketcher.Constraint("Vertical", 15, 2, 37, 2),
    Sketcher.Constraint("Equal", 6, 8),
    Sketcher.Constraint("Equal", 10, 12),
    Sketcher.Constraint("Equal", 2, 16),
    Sketcher.Constraint("Equal", 19, 20),
    Sketcher.Constraint("DistanceX", 0, 1, 0, 2, Q("1.6 mm")),
    Sketcher.Constraint("DistanceX", 4, 1, 4, 2, Q("2.5 mm")),
    Sketcher.Constraint("DistanceY", 1, 2, 1, 1, Q("1.4 mm")),
    Sketcher.Constraint("DistanceX", 1, 2, 6, 2, Q("6 mm")),
    Sketcher.Constraint("DistanceX", 7, 2, 8, 2, Q("11 mm")),
    Sketcher.Constraint("DistanceX", 11, 2, 12, 2, Q("11 mm")),
    Sketcher.Constraint("DistanceX", 13, 2, 18, 2, Q("7 mm")),
    Sketcher.Constraint("DistanceX", 0, 2, -1, 1, Q("39.2 mm")),
    Sketcher.Constraint("DistanceY", 20, 2, -1, 1, Q("18.6 mm")),
])
pad4 = body.newObject("PartDesign::Pad", "Pad003")
pad4.Profile = sketch5
pad4.Length = 5
pad4.Reversed = True

# Sketch on YZ plane
sketch6 = body.newObject("Sketcher::SketchObject", "Sketch005")
sketch6.AttachmentSupport = (doc.getObject("YZ_Plane"), [""])
sketch6.MapMode = "FlatFace"
sketch6.AttachmentOffset = App.Placement(V(0, 0, 1.6), App.Rotation())
sketch6.addGeometry([
    Part.LineSegment(V(-1, -15, 0), V(6, -15, 0)),
    Part.LineSegment(V(6, -15, 0), V(6, -3, 0)),
    Part.LineSegment(V(6, -3, 0), V(-1, -3, 0)),
    Part.LineSegment(V(-1, -3, 0), V(-1, -15, 0)),
], False)
sketch6.addConstraint([
    Sketcher.Constraint("Coincident", 0, 2, 1, 1),
    Sketcher.Constraint("Coincident", 1, 2, 2, 1),
    Sketcher.Constraint("Coincident", 2, 2, 3, 1),
    Sketcher.Constraint("Coincident", 3, 2, 0, 1),
    Sketcher.Constraint("Horizontal", 0),
    Sketcher.Constraint("Vertical", 1),
    Sketcher.Constraint("Horizontal", 2),
    Sketcher.Constraint("Vertical", 3),
    Sketcher.Constraint("DistanceX", 0, 1, 0, 2, Q("7 mm")),
    Sketcher.Constraint("DistanceY", 1, 1, 1, 2, Q("12 mm")),
    Sketcher.Constraint("DistanceX", -1, 1, 0, 2, Q("6.2 mm")),
    Sketcher.Constraint("DistanceY", 0, 2, -1, 1, Q("15.3 mm")),
])
pocket2 = body.newObject("PartDesign::Pocket", "Pocket001")
pocket2.Profile = sketch6
pocket2.Length = 3.1

# Sketch on XZ plane
sketch7 = body.newObject("Sketcher::SketchObject", "Sketch006")
sketch7.AttachmentSupport = (doc.getObject("XZ_Plane"), [""])
sketch7.MapMode = "FlatFace"
sketch7.AttachmentOffset = App.Placement(V(0, 0, -1.8), App.Rotation())
sketch7.addGeometry([
    Part.LineSegment(V(0, -15.3, 0), V(0, -17.2, 0)),  # 0
    Part.LineSegment(V(0, -17.2, 0), V(-5.1, -17.2, 0)),  # 1
    Part.LineSegment(V(-5.1, -17.2, 0), V(-3.2, -15.3, 0)),  # 2
    Part.LineSegment(V(-3.2, -15.3, 0), V(0, -15.3, 0)),  # 3
    Part.LineSegment(V(-5.1, -1.4, 0), V(0, -1.4, 0)),  # 4
    Part.LineSegment(V(0, -1.4, 0), V(0, -3.3, 0)),  # 5
    Part.LineSegment(V(0, -3.3, 0), V(-3.2, -3.3, 0)),  # 6
    Part.LineSegment(V(-3.2, -3.3, 0), V(-5.1, -1.4, 0)),  # 7
], False)
sketch7.addConstraint([
    Sketcher.Constraint("Coincident", 0, 2, 1, 1),
    Sketcher.Constraint("Coincident", 1, 2, 2, 1),
    Sketcher.Constraint("Coincident", 2, 2, 3, 1),
    Sketcher.Constraint("Coincident", 3, 2, 0, 1),
    Sketcher.Constraint("Coincident", 4, 2, 5, 1),
    Sketcher.Constraint("Coincident", 5, 2, 6, 1),
    Sketcher.Constraint("Coincident", 6, 2, 7, 1),
    Sketcher.Constraint("Coincident", 7, 2, 4, 1),
    Sketcher.Constraint("Vertical", 0),
    Sketcher.Constraint("Horizontal", 1),
    Sketcher.Constraint("Horizontal", 3),
    Sketcher.Constraint("Horizontal", 4),
    Sketcher.Constraint("Vertical", 5),
    Sketcher.Constraint("Horizontal", 6),
    Sketcher.Constraint("PointOnObject", 0, 2, -2),
    Sketcher.Constraint("PointOnObject", 4, 2, -2),
    Sketcher.Constraint("Perpendicular", 2, 7),
    Sketcher.Constraint("Vertical", 2, 2, 6, 2),
    Sketcher.Constraint("Vertical", 1, 2, 7, 2),
    Sketcher.Constraint("Equal", 0, 5),
    Sketcher.Constraint("DistanceX", 1, 2, 1, 1, Q("5.1 mm")),
    Sketcher.Constraint("DistanceX", 3, 1, 3, 2, Q("3.2 mm")),
    Sketcher.Constraint("DistanceY", 3, 2, 5, 2, Q("12 mm")),
    Sketcher.Constraint("DistanceY", 0, 2, -1, 1, Q("17.2 mm")),
])
pad5 = body.newObject("PartDesign::Pad", "Pad004")
pad5.Profile = sketch7
pad5.Length = 4.4
pad5.Reversed = True

# Sketch on XZ plane
sketch8 = body.newObject("Sketcher::SketchObject", "Sketch007")
sketch8.AttachmentSupport = (doc.getObject("XZ_Plane"), [""])
sketch8.MapMode = "FlatFace"
sketch8.AttachmentOffset = App.Placement(V(0, 0, -6.2), App.Rotation())
sketch8.addGeometry([
    Part.Circle(V(-42.8, -16.3, 0), V(0, 0, 1), 1),
    Part.Circle(V(-42.8, -2.3, 0), V(0, 0, 1), 1),
    Part.Circle(V(-1.8, -17.3, 0), V(0, 0, 1), 1),
    Part.Circle(V(-1.8, -1.3, 0), V(0, 0, 1), 1),
], False)
sketch8.addConstraint([
    Sketcher.Constraint("Equal", 0, 1),
    Sketcher.Constraint("Equal", 1, 2),
    Sketcher.Constraint("Equal", 2, 3),
    Sketcher.Constraint("Vertical", 0, 3, 1, 3),
    Sketcher.Constraint("Vertical", 2, 3, 3, 3),
    Sketcher.Constraint("Diameter", 0, Q("2 mm")),
    Sketcher.Constraint("DistanceY", 0, 3, 1, 3, Q("14 mm")),
    Sketcher.Constraint("DistanceX", 0, 3, 2, 3, Q("41 mm")),
    Sketcher.Constraint("DistanceY", 2, 3, 0, 3, Q("1 mm")),
    Sketcher.Constraint("DistanceY", 2, 3, 3, 3, Q("16 mm")),
    Sketcher.Constraint("DistanceX", 0, 3, -1, 1, Q("42.8 mm")),
    Sketcher.Constraint("DistanceY", 0, 3, -1, 1, Q("16.3 mm")),
])
doc.recompute()
hole = body.newObject("PartDesign::Hole", "Hole")
hole.Profile = sketch8
hole.ThreadType = "None"
hole.Diameter = 2
hole.DepthType = "Dimension"
hole.Depth = 6.2
hole.DrillPoint = "Flat"
hole.Reversed = True

# Sketch on XZ plane
sketch9 = body.newObject("Sketcher::SketchObject", "Sketch008")
sketch9.AttachmentSupport = (doc.getObject("XZ_Plane"), [""])
sketch9.MapMode = "FlatFace"
sketch9.AttachmentOffset = App.Placement(V(0, 0, -6.2), App.Rotation())
sketch9.addGeometry([
    Part.LineSegment(V(-50.8, -16, 0), V(-50.8, -2.6, 0)),  # 0
    Part.LineSegment(V(-50.8, -2.6, 0), V(-46.8, 1.4, 0)),  # 1
    Part.LineSegment(V(-46.8, 1.4, 0), V(-5.1, 1.4, 0)),  # 2
    Part.LineSegment(V(-5.1, 1.4, 0), V(-5.1, 0, 0)),  # 3
    Part.LineSegment(V(-5.1, 0, 0), V(-43.8, 0, 0)),  # 4
    Part.LineSegment(V(-43.8, 0, 0), V(-44.8, -1, 0)),  # 5
    Part.LineSegment(V(-44.8, -1, 0), V(-44.8, -17.6, 0)),  # 6
    Part.LineSegment(V(-44.8, -17.6, 0), V(-43.8, -18.6, 0)),  # 7
    Part.LineSegment(V(-43.8, -18.6, 0), V(-5.1, -18.6, 0)),  # 8
    Part.LineSegment(V(-5.1, -18.6, 0), V(-5.1, -20, 0)),  # 9
    Part.LineSegment(V(-5.1, -20, 0), V(-46.8, -20, 0)),  # 10
    Part.LineSegment(V(-46.8, -20, 0), V(-50.8, -16, 0)),  # 11
    Part.LineSegment(V(-45.8, -1.8, 0), V(-47.9, -1.8, 0)),  # 12
    Part.LineSegment(V(-47.9, -1.8, 0), V(-49.3, -3.2, 0)),  # 13
    Part.LineSegment(V(-49.3, -3.2, 0), V(-49.3, -15.4, 0)),  # 14
    Part.LineSegment(V(-49.3, -15.4, 0), V(-47.9, -16.8, 0)),  # 15
    Part.LineSegment(V(-47.9, -16.8, 0), V(-45.8, -16.8, 0)),  # 16
    Part.LineSegment(V(-45.8, -16.8, 0), V(-45.8, -1.8, 0)),  # 17
], False)
sketch9.addConstraint([
    Sketcher.Constraint("Coincident", 0, 2, 1, 1),
    Sketcher.Constraint("Coincident", 1, 2, 2, 1),
    Sketcher.Constraint("Coincident", 2, 2, 3, 1),
    Sketcher.Constraint("Coincident", 3, 2, 4, 1),
    Sketcher.Constraint("Coincident", 4, 2, 5, 1),
    Sketcher.Constraint("Coincident", 5, 2, 6, 1),
    Sketcher.Constraint("Coincident", 6, 2, 7, 1),
    Sketcher.Constraint("Coincident", 7, 2, 8, 1),
    Sketcher.Constraint("Coincident", 8, 2, 9, 1),
    Sketcher.Constraint("Coincident", 9, 2, 10, 1),
    Sketcher.Constraint("Coincident", 10, 2, 11, 1),
    Sketcher.Constraint("Coincident", 11, 2, 0, 1),
    Sketcher.Constraint("Coincident", 12, 2, 13, 1),
    Sketcher.Constraint("Coincident", 13, 2, 14, 1),
    Sketcher.Constraint("Coincident", 14, 2, 15, 1),
    Sketcher.Constraint("Coincident", 15, 2, 16, 1),
    Sketcher.Constraint("Coincident", 16, 2, 17, 1),
    Sketcher.Constraint("Coincident", 17, 2, 12, 1),
    Sketcher.Constraint("Vertical", 0),
    Sketcher.Constraint("Horizontal", 2),
    Sketcher.Constraint("Vertical", 3),
    Sketcher.Constraint("Horizontal", 4),
    Sketcher.Constraint("Vertical", 6),
    Sketcher.Constraint("Horizontal", 8),
    Sketcher.Constraint("Vertical", 9),
    Sketcher.Constraint("Horizontal", 10),
    Sketcher.Constraint("Horizontal", 12),
    Sketcher.Constraint("Vertical", 14),
    Sketcher.Constraint("Horizontal", 16),
    Sketcher.Constraint("Vertical", 17),
    Sketcher.Constraint("PointOnObject", 3, 2, -1),
    Sketcher.Constraint("Parallel", 1, 5),
    Sketcher.Constraint("Perpendicular", 5, 7),
    Sketcher.Constraint("Parallel", 7, 11),
    Sketcher.Constraint("Perpendicular", 11, 13),
    Sketcher.Constraint("Perpendicular", 13, 15),
    Sketcher.Constraint("Vertical", 4, 2, 7, 2),
    Sketcher.Constraint("Vertical", 3, 2, 8, 2),
    Sketcher.Constraint("Vertical", 1, 2, 10, 2),
    Sketcher.Constraint("Vertical", 12, 2, 15, 2),
    Sketcher.Constraint("Equal", 3, 9),
    Sketcher.Constraint("Equal", 5, 7),
    Sketcher.Constraint("DistanceY", 5, 2, -1, 1, Q("1 mm")),
    Sketcher.Constraint("DistanceX", 16, 2, 6, 2, Q("1 mm")),
    Sketcher.Constraint("DistanceX", 10, 2, 16, 2, Q("1 mm")),
    Sketcher.Constraint("DistanceY", 17, 1, 17, 2, Q("15 mm")),
    Sketcher.Constraint("DistanceX", 2, 1, 2, 2, Q("41.7 mm")),
    Sketcher.Constraint("DistanceY", 0, 1, 0, 2, Q("13.4 mm")),
    Sketcher.Constraint("DistanceY", 3, 2, 3, 1, Q("1.4 mm")),
    Sketcher.Constraint("DistanceY", 6, 2, 6, 1, Q("16.6 mm")),
    Sketcher.Constraint("DistanceX", 0, 2, -1, 1, Q("50.8 mm")),
    Sketcher.Constraint("DistanceY", 12, 2, -1, 1, Q("1.8 mm")),
    Sketcher.Constraint("DistanceX", 13, 2, -1, 1, Q("49.3 mm")),
    Sketcher.Constraint("Distance", 13, Q("2.01 mm")),
])
pad6 = body.newObject("PartDesign::Pad", "Pad005")
pad6.Profile = sketch9
pad6.Length = 1.2
pad6.Reversed = True

doc.recompute()
